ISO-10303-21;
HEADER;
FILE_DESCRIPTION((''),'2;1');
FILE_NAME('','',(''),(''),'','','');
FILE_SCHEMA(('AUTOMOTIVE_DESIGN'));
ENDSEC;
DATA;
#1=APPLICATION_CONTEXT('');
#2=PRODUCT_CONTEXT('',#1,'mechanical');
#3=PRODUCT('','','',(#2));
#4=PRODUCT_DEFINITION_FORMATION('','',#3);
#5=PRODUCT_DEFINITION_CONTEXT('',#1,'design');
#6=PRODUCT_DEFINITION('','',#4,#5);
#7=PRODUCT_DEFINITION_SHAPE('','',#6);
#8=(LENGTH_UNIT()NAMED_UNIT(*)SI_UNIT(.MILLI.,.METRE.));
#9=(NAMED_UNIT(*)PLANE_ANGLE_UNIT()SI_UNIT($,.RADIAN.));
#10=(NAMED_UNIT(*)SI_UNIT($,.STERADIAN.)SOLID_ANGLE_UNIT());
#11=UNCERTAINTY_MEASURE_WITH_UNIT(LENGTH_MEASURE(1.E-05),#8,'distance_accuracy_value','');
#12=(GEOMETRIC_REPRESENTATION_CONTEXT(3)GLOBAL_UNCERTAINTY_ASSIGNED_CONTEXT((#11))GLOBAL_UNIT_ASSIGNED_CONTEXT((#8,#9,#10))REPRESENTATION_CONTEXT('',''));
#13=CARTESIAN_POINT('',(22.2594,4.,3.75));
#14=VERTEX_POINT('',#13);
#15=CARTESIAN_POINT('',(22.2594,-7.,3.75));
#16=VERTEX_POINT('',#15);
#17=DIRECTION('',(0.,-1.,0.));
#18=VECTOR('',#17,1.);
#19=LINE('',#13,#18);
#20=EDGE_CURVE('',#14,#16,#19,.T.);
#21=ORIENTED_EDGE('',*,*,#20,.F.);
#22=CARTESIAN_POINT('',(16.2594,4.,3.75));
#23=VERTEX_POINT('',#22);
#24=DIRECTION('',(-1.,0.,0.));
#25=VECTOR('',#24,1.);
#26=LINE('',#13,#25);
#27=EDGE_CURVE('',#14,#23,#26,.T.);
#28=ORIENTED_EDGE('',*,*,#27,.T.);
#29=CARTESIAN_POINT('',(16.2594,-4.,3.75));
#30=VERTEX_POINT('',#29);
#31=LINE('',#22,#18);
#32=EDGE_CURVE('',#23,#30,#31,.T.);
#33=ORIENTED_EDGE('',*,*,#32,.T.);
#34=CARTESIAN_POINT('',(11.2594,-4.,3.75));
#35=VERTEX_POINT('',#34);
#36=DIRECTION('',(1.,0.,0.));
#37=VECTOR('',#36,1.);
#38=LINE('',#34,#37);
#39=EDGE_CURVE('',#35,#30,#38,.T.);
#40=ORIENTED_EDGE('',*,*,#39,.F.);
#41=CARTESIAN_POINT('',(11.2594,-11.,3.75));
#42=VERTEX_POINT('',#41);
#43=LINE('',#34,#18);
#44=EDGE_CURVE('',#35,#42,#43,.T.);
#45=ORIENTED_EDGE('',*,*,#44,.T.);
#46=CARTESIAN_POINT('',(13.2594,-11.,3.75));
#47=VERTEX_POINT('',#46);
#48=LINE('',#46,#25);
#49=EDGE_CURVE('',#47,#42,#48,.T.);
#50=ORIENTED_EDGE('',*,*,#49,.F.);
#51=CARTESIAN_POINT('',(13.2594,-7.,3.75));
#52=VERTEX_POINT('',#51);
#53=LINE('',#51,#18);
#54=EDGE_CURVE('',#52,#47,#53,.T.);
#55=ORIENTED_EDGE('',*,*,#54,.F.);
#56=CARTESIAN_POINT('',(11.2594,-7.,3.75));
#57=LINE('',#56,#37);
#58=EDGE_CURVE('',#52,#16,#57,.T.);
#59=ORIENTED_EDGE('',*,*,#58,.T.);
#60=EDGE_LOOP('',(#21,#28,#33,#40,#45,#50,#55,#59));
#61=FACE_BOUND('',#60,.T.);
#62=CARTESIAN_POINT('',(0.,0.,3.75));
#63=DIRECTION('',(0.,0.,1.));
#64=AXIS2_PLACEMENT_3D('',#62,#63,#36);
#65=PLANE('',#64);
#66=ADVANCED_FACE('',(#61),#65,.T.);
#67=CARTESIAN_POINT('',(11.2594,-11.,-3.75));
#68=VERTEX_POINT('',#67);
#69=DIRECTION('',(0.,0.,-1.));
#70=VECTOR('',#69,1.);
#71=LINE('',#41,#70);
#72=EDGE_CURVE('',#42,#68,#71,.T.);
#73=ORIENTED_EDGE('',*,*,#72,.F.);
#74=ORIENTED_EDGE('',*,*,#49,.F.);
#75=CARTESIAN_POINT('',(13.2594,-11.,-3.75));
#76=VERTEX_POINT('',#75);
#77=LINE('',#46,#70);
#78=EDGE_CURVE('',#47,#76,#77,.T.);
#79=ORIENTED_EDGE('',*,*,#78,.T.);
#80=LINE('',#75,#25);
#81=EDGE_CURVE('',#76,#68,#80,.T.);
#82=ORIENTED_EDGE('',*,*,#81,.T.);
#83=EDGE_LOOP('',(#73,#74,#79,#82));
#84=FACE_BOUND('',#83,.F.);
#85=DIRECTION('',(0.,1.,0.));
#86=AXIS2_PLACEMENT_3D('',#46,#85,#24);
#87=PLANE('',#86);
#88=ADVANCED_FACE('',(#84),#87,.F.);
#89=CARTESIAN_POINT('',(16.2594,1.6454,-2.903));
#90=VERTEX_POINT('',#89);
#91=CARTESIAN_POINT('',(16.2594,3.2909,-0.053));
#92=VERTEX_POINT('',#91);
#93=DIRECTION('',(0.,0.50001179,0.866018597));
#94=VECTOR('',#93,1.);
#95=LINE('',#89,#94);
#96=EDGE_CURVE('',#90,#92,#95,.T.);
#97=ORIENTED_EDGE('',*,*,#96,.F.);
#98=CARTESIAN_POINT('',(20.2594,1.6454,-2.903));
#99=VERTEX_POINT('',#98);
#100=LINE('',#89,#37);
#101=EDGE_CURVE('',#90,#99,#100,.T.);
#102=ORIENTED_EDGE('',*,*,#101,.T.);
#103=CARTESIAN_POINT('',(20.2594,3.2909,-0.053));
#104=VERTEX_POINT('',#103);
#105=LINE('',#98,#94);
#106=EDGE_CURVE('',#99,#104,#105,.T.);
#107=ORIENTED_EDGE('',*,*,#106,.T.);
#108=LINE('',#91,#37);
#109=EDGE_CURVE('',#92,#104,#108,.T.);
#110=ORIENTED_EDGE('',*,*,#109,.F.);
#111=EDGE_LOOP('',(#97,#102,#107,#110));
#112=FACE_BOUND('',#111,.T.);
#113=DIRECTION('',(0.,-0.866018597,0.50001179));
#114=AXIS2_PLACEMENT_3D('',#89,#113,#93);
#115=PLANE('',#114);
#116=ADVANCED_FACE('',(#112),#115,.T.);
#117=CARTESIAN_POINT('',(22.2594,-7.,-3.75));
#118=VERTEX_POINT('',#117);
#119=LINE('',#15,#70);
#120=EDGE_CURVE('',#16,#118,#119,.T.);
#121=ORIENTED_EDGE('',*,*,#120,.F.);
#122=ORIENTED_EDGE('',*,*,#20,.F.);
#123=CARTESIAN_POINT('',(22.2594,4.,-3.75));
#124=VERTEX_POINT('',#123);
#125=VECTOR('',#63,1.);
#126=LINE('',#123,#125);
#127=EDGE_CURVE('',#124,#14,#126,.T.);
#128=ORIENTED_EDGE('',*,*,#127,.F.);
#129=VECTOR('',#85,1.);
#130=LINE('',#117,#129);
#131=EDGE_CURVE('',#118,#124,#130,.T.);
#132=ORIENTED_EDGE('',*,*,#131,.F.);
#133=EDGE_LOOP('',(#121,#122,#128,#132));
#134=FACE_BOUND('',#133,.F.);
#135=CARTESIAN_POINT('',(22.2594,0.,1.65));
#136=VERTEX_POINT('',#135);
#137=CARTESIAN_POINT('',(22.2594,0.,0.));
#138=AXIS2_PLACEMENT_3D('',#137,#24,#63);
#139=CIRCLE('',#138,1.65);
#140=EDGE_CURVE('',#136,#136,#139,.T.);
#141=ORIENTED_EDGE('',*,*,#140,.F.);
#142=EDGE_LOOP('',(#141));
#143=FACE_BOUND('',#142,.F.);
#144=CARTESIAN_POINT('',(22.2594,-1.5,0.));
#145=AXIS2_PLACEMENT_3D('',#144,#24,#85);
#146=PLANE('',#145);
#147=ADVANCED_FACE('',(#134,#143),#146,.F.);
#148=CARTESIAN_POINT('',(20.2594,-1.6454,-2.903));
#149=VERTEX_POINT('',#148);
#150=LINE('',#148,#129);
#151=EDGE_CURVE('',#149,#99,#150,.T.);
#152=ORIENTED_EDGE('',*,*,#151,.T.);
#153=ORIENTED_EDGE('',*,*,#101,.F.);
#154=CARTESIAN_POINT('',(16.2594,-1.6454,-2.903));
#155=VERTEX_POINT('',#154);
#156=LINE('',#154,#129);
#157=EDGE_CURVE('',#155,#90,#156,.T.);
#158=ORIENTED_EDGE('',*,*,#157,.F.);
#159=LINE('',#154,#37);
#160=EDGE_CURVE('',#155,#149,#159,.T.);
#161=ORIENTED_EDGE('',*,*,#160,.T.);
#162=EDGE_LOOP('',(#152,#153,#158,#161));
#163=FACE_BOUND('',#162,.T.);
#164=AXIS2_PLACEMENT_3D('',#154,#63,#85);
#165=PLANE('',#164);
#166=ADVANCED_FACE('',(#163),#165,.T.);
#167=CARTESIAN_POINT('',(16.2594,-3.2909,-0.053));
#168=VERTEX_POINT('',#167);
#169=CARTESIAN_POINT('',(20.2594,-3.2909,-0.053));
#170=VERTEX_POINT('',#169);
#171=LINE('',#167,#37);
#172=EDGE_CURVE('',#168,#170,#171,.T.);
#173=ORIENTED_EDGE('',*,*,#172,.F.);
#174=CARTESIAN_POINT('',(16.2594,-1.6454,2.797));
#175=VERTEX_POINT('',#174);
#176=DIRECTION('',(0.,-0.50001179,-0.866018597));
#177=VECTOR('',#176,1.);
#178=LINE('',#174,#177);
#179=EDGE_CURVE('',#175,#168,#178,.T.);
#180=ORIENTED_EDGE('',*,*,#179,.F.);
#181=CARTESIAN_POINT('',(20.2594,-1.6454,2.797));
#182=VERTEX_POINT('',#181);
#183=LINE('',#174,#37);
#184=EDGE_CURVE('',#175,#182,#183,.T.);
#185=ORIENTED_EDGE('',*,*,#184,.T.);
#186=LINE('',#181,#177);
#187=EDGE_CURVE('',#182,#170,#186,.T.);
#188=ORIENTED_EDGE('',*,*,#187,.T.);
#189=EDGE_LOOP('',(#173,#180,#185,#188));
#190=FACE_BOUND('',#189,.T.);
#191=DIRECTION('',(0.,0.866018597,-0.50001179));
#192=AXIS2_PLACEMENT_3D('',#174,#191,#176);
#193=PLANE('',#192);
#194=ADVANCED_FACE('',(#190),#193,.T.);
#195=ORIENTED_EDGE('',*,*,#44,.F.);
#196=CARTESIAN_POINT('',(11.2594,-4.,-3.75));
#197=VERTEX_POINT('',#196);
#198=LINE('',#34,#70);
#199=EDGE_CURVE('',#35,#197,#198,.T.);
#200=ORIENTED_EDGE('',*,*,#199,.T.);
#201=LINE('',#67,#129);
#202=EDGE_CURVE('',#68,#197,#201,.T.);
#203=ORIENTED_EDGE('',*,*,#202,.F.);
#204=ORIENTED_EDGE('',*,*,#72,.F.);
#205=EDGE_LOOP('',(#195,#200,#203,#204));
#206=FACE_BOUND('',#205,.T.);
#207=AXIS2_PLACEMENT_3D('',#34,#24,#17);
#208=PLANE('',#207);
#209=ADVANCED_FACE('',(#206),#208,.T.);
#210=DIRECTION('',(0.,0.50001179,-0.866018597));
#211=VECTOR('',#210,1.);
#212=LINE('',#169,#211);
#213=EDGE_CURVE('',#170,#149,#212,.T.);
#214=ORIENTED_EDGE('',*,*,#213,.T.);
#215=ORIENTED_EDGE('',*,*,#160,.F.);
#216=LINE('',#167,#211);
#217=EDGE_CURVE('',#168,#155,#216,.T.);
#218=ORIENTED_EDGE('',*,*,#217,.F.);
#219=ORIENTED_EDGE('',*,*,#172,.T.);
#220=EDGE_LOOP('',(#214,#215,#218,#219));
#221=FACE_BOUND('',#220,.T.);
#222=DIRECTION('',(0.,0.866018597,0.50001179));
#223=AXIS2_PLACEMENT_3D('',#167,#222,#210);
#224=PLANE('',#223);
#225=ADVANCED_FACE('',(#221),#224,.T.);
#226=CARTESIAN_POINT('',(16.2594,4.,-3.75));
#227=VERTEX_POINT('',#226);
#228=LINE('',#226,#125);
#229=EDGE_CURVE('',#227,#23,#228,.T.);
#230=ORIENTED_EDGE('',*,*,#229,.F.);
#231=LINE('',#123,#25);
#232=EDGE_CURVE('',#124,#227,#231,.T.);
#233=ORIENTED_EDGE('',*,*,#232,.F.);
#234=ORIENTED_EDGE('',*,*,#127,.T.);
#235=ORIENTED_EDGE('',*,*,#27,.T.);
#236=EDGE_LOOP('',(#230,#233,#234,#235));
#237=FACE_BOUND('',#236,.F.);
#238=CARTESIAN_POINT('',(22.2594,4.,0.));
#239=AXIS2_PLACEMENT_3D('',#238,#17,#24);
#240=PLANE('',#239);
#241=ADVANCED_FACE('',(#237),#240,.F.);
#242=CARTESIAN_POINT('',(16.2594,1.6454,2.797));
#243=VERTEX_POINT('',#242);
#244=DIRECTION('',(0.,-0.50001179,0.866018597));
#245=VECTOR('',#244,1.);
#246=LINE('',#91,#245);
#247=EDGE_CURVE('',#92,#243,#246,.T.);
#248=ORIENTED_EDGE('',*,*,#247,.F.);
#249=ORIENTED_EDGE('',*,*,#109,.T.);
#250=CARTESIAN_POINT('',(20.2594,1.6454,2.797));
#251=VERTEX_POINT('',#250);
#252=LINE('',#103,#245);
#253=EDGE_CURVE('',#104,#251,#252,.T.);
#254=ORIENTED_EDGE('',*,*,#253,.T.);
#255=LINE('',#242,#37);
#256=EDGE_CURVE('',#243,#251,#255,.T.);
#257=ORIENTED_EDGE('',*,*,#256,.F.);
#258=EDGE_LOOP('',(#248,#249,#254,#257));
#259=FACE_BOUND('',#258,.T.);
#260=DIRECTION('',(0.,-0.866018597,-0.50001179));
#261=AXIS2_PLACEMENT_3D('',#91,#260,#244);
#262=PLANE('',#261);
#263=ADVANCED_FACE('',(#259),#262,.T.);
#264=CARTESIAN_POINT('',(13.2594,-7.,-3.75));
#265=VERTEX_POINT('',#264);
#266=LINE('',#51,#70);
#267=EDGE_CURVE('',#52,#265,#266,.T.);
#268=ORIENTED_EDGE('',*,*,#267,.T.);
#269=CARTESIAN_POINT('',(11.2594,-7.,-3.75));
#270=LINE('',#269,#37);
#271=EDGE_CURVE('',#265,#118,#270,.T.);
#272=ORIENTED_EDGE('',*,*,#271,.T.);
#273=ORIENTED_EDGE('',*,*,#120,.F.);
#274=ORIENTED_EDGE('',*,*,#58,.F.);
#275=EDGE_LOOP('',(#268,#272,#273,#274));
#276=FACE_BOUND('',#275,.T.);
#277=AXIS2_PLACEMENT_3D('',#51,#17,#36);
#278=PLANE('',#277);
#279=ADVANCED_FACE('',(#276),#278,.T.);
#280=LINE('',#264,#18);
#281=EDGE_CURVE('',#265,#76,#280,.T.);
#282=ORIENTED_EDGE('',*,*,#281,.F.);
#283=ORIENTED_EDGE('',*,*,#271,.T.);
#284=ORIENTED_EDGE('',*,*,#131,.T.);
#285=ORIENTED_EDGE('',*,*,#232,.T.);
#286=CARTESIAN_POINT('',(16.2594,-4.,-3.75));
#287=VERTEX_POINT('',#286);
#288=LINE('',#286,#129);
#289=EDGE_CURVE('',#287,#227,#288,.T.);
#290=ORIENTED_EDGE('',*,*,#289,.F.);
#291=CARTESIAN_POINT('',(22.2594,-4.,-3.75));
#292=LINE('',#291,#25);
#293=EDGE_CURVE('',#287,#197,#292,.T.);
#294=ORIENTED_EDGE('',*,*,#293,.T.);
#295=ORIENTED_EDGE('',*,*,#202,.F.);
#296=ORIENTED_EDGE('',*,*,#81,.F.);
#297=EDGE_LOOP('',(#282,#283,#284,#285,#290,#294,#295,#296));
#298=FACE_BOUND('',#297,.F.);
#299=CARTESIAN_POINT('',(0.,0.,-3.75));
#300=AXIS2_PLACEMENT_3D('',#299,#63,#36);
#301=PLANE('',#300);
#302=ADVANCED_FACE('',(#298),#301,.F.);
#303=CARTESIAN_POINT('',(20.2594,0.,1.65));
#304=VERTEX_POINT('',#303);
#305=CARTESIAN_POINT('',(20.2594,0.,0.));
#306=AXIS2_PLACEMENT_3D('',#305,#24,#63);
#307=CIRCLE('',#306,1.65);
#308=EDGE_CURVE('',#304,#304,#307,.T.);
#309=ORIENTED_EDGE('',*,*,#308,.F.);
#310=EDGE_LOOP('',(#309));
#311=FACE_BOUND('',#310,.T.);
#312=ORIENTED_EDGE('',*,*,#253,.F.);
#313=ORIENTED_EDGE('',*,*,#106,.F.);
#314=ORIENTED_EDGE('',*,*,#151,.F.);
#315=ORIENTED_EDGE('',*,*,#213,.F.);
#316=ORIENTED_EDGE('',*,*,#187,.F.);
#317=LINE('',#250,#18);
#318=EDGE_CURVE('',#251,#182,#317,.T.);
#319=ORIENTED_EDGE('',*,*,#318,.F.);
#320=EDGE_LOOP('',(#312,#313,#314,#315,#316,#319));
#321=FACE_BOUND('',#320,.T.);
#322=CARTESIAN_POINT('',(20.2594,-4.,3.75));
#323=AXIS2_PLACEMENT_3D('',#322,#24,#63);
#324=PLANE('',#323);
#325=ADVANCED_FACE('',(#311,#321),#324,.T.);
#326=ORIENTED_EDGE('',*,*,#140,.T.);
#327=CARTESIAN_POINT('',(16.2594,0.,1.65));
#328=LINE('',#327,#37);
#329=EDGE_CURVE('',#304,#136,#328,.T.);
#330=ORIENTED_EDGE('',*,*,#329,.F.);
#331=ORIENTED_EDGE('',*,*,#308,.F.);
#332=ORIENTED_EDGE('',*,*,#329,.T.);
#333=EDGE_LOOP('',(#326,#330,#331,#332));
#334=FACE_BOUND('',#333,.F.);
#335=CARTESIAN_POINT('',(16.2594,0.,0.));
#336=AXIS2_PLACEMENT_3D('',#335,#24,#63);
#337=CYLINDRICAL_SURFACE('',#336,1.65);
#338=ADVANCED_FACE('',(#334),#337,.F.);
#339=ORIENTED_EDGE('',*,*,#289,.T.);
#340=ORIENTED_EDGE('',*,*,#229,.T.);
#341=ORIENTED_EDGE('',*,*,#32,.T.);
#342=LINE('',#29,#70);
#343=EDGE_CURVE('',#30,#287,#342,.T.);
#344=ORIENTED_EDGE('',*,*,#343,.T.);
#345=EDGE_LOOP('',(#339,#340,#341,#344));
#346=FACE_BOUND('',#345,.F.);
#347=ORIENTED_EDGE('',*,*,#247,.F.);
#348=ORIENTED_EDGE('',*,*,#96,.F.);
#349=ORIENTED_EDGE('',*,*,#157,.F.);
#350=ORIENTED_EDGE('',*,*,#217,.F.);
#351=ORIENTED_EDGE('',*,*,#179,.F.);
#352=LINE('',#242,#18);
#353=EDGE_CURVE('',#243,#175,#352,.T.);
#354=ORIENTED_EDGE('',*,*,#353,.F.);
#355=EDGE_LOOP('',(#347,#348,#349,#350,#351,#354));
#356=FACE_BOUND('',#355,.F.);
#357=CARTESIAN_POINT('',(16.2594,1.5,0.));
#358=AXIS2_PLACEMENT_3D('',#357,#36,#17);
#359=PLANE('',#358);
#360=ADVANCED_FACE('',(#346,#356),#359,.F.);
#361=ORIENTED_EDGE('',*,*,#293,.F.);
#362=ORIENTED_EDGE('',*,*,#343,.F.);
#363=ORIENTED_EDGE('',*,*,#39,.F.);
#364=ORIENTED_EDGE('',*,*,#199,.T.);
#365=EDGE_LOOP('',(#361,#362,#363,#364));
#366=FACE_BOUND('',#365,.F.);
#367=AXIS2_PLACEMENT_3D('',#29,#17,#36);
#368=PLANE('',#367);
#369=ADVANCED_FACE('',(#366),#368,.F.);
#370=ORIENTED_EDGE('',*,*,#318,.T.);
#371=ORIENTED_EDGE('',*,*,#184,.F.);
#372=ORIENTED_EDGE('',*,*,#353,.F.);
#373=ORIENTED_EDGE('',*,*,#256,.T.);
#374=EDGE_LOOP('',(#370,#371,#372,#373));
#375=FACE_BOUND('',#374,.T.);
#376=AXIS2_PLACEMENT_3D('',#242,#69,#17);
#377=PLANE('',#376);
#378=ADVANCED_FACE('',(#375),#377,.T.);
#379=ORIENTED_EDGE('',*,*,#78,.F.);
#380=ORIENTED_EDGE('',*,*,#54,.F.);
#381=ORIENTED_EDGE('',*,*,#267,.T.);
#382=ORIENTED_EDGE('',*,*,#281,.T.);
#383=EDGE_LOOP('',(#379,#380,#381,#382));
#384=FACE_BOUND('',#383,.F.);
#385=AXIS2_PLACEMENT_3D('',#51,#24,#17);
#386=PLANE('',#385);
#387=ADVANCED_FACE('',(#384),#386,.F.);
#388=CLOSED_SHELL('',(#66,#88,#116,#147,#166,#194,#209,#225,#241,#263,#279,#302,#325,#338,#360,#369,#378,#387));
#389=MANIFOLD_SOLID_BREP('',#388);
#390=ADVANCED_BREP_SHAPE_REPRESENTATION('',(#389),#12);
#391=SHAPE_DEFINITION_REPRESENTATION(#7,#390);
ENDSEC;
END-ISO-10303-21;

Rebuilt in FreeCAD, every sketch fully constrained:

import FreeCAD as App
import Part
import Sketcher
Q = App.Units.Quantity


def add_polygon(sketch, points):
    """Adds a closed chain of lines whose ends are joined by coincident constraints."""
    first, n = sketch.GeometryCount, len(points)
    for a, b in zip(points, points[1:] + points[:1]):
        sketch.addGeometry(Part.LineSegment(App.Vector(*a, 0), App.Vector(*b, 0)), False)
    for i in range(n):
        sketch.addConstraint(Sketcher.Constraint("Coincident", first + i, 2, first + (i + 1) % n, 1))

doc = App.newDocument("Part")
body = doc.addObject("PartDesign::Body", "Body")

# Sketch on XY plane
sketch1 = body.newObject("Sketcher::SketchObject", "Sketch")
sketch1.AttachmentSupport = (doc.getObject("XY_Plane"), [""])
sketch1.MapMode = "FlatFace"
add_polygon(sketch1, [(22, 4), (16, 4), (16, -4), (22, -4)])  # lines 0-3
sketch1.addConstraint([
    Sketcher.Constraint("Horizontal", 0),
    Sketcher.Constraint("Vertical", 1),
    Sketcher.Constraint("Horizontal", 2),
    Sketcher.Constraint("Vertical", 3),
    Sketcher.Constraint("DistanceX", 0, 2, 0, 1, Q("6 mm")),
    Sketcher.Constraint("DistanceY", 1, 2, 1, 1, Q("8 mm")),
    Sketcher.Constraint("DistanceY", -1, 1, 0, 2, Q("4 mm")),
    Sketcher.Constraint("DistanceX", -1, 1, 0, 2, Q("16.2594 mm")),
])
pad1 = body.newObject("PartDesign::Pad", "Pad")
pad1.Profile = sketch1
pad1.Length = 7.5
pad1.Midplane = True

# Sketch on YZ plane
sketch2 = body.newObject("Sketcher::SketchObject", "Sketch001")
sketch2.AttachmentSupport = (doc.getObject("YZ_Plane"), [""])
sketch2.MapMode = "FlatFace"
sketch2.AttachmentOffset = App.Placement(App.Vector(0, 0, 16.2594), App.Rotation())
sketch2.addGeometry(Part.Circle(App.Vector(0, 0, 0), App.Vector(0, 0, 1), 1.6), False)
sketch2.addConstraint([
    Sketcher.Constraint("Coincident", 0, 3, -1, 1),
    Sketcher.Constraint("Diameter", 0, Q("3.3 mm")),
])
pocket1 = body.newObject("PartDesign::Pocket", "Pocket")
pocket1.Profile = sketch2
pocket1.Type = "ThroughAll"
pocket1.Reversed = True

# Sketch on YZ plane
sketch3 = body.newObject("Sketcher::SketchObject", "Sketch002")
sketch3.AttachmentSupport = (doc.getObject("YZ_Plane"), [""])
sketch3.MapMode = "FlatFace"
sketch3.AttachmentOffset = App.Placement(App.Vector(0, 0, 16.2594), App.Rotation())
add_polygon(sketch3, [(-3.3, -0.1), (-1.6, 2.8), (1.6, 2.8), (3.3, -0.1), (1.6, -2.9), (-1.6, -2.9)])  # lines 0-5
sketch3.addConstraint([
    Sketcher.Constraint("Horizontal", 1),
    Sketcher.Constraint("Horizontal", 4),
    Sketcher.Constraint("Symmetric", 2, 2, 5, 2, -2),
    Sketcher.Constraint("Parallel", 0, 3),
    Sketcher.Constraint("Parallel", 2, 5),
    Sketcher.Constraint("Vertical", 1, 2, 3, 2),
    Sketcher.Constraint("Vertical", 0, 2, 4, 2),
    Sketcher.Constraint("DistanceY", 3, 2, 1, 2, Q("5.7 mm")),
    Sketcher.Constraint("Angle", 0, Q("59.9992 deg")),
    Sketcher.Constraint("DistanceX", 1, 1, 1, 2, Q("3.2908 mm")),
    Sketcher.Constraint("DistanceY", -1, 1, 0, 2, Q("2.797 mm")),
])
pocket2 = body.newObject("PartDesign::Pocket", "Pocket001")
pocket2.Profile = sketch3
pocket2.Length = 4
pocket2.Reversed = True

# Sketch on XY plane
sketch4 = body.newObject("Sketcher::SketchObject", "Sketch003")
sketch4.AttachmentSupport = (doc.getObject("XY_Plane"), [""])
sketch4.MapMode = "FlatFace"
sketch4.AttachmentOffset = App.Placement(App.Vector(0, 0, 3.75), App.Rotation())
add_polygon(sketch4, [(22.3, -4), (11.3, -4), (11.3, -11), (13.3, -11), (13.3, -7), (22.3, -7)])  # lines 0-5
sketch4.addConstraint([
    Sketcher.Constraint("Horizontal", 0),
    Sketcher.Constraint("Vertical", 1),
    Sketcher.Constraint("Horizontal", 2),
    Sketcher.Constraint("Vertical", 3),
    Sketcher.Constraint("Horizontal", 4),
    Sketcher.Constraint("Vertical", 5),
    Sketcher.Constraint("DistanceX", 0, 2, 0, 1, Q("11 mm")),
    Sketcher.Constraint("DistanceX", 2, 1, 2, 2, Q("2 mm")),
    Sketcher.Constraint("DistanceY", 3, 1, 3, 2, Q("4 mm")),
    Sketcher.Constraint("DistanceY", 5, 1, 5, 2, Q("3 mm")),
    Sketcher.Constraint("DistanceY", 0, 2, -1, 1, Q("4 mm")),
    Sketcher.Constraint("DistanceX", -1, 1, 0, 2, Q("11.2594 mm")),
])
pad2 = body.newObject("PartDesign::Pad", "Pad001")
pad2.Profile = sketch4
pad2.Length = 7.5
pad2.Reversed = True

doc.recompute()
